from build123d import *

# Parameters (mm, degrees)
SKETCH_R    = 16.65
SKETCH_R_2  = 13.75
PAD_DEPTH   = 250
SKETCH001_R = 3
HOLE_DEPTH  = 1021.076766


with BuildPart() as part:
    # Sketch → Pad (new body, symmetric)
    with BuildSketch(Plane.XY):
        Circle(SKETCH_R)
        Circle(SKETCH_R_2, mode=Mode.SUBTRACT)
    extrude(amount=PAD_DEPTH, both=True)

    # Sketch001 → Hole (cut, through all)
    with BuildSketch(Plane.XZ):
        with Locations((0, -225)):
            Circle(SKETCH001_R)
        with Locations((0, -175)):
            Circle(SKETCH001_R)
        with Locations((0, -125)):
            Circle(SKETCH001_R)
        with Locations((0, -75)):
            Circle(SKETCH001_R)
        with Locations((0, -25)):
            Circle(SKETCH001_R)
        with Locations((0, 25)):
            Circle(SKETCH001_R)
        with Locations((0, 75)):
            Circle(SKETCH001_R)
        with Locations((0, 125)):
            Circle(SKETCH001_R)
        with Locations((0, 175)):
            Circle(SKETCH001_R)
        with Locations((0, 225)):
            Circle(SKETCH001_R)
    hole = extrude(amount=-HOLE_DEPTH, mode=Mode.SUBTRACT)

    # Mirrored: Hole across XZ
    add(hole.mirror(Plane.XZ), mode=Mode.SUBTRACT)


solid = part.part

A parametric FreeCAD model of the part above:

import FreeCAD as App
import Part
import Sketcher
Q = App.Units.Quantity

doc = App.newDocument("Part")
body = doc.addObject("PartDesign::Body", "Body")

sketch1 = doc.addObject("Sketcher::SketchObject", "Sketch")
body.addObject(sketch1)
sketch1.AttachmentSupport = (doc.XY_Plane, [""])
sketch1.MapMode = "FlatFace"
sketch1.addGeometry([
    Part.Circle(App.Vector(0, 0, 0), App.Vector(0, 0, 1), 17),
    Part.Circle(App.Vector(0, 0, 0), App.Vector(0, 0, 1), 14),
], False)
sketch1.addConstraint([
    Sketcher.Constraint("Coincident", 0, 3, -1, 1),
    Sketcher.Constraint("Coincident", 1, 3, -1, 1),
    Sketcher.Constraint("Diameter", 0, Q("33.3 mm")),
    Sketcher.Constraint("Diameter", 1, Q("27.5 mm")),
])
pad1 = doc.addObject("PartDesign::Pad", "Pad")
body.addObject(pad1)
pad1.Profile = sketch1
pad1.Length = 500
pad1.Midplane = True

sketch2 = doc.addObject("Sketcher::SketchObject", "Sketch001")
body.addObject(sketch2)
sketch2.AttachmentSupport = (doc.XZ_Plane, [""])
sketch2.MapMode = "FlatFace"
sketch2.addGeometry([
    Part.Circle(App.Vector(0, -225, 0), App.Vector(0, 0, 1), 3),
    Part.Circle(App.Vector(0, -175, 0), App.Vector(0, 0, 1), 3),
    Part.Circle(App.Vector(0, -125, 0), App.Vector(0, 0, 1), 3),
    Part.Circle(App.Vector(0, -75, 0), App.Vector(0, 0, 1), 3),
    Part.Circle(App.Vector(0, -25, 0), App.Vector(0, 0, 1), 3),
    Part.Circle(App.Vector(0, 25, 0), App.Vector(0, 0, 1), 3),
    Part.Circle(App.Vector(0, 75, 0), App.Vector(0, 0, 1), 3),
    Part.Circle(App.Vector(0, 125, 0), App.Vector(0, 0, 1), 3),
    Part.Circle(App.Vector(0, 175, 0), App.Vector(0, 0, 1), 3),
    Part.Circle(App.Vector(0, 225, 0), App.Vector(0, 0, 1), 3),
], False)
sketch2.addConstraint([
    Sketcher.Constraint("Equal", 0, 1),
    Sketcher.Constraint("Equal", 1, 2),
    Sketcher.Constraint("Equal", 2, 3),
    Sketcher.Constraint("Equal", 3, 4),
    Sketcher.Constraint("Equal", 4, 5),
    Sketcher.Constraint("Equal", 5, 6),
    Sketcher.Constraint("Equal", 6, 7),
    Sketcher.Constraint("Equal", 7, 8),
    Sketcher.Constraint("Equal", 8, 9),
    Sketcher.Constraint("Symmetric", 4, 3, 5, 3, -1, 1),
    Sketcher.Constraint("Symmetric", 3, 3, 6, 3, -1, 1),
    Sketcher.Constraint("Symmetric", 2, 3, 7, 3, -1, 1),
    Sketcher.Constraint("Symmetric", 1, 3, 8, 3, -1, 1),
    Sketcher.Constraint("Symmetric", 0, 3, 9, 3, -1, 1),
    Sketcher.Constraint("PointOnObject", 0, 3, -2),
    Sketcher.Constraint("PointOnObject", 1, 3, -2),
    Sketcher.Constraint("PointOnObject", 2, 3, -2),
    Sketcher.Constraint("PointOnObject", 3, 3, -2),
    Sketcher.Constraint("PointOnObject", 4, 3, -2),
    Sketcher.Constraint("Diameter", 0, Q("6 mm")),
    Sketcher.Constraint("DistanceY", 0, 3, -1, 1, Q("225 mm")),
    Sketcher.Constraint("DistanceY", 1, 3, -1, 1, Q("175 mm")),
    Sketcher.Constraint("DistanceY", 2, 3, -1, 1, Q("125 mm")),
    Sketcher.Constraint("DistanceY", 3, 3, -1, 1, Q("75 mm")),
    Sketcher.Constraint("DistanceY", 4, 3, -1, 1, Q("25 mm")),
])
pocket1 = doc.addObject("PartDesign::Pocket", "Pocket")
body.addObject(pocket1)
pocket1.Profile = sketch2
pocket1.Type = "ThroughAll"
doc.recompute()

mirrored = doc.addObject("PartDesign::Mirrored", "Mirrored")
body.addObject(mirrored)
mirrored.Originals = [pocket1]
mirrored.MirrorPlane = (doc.XZ_Plane, [""])
body.Tip = mirrored

doc.recompute()
